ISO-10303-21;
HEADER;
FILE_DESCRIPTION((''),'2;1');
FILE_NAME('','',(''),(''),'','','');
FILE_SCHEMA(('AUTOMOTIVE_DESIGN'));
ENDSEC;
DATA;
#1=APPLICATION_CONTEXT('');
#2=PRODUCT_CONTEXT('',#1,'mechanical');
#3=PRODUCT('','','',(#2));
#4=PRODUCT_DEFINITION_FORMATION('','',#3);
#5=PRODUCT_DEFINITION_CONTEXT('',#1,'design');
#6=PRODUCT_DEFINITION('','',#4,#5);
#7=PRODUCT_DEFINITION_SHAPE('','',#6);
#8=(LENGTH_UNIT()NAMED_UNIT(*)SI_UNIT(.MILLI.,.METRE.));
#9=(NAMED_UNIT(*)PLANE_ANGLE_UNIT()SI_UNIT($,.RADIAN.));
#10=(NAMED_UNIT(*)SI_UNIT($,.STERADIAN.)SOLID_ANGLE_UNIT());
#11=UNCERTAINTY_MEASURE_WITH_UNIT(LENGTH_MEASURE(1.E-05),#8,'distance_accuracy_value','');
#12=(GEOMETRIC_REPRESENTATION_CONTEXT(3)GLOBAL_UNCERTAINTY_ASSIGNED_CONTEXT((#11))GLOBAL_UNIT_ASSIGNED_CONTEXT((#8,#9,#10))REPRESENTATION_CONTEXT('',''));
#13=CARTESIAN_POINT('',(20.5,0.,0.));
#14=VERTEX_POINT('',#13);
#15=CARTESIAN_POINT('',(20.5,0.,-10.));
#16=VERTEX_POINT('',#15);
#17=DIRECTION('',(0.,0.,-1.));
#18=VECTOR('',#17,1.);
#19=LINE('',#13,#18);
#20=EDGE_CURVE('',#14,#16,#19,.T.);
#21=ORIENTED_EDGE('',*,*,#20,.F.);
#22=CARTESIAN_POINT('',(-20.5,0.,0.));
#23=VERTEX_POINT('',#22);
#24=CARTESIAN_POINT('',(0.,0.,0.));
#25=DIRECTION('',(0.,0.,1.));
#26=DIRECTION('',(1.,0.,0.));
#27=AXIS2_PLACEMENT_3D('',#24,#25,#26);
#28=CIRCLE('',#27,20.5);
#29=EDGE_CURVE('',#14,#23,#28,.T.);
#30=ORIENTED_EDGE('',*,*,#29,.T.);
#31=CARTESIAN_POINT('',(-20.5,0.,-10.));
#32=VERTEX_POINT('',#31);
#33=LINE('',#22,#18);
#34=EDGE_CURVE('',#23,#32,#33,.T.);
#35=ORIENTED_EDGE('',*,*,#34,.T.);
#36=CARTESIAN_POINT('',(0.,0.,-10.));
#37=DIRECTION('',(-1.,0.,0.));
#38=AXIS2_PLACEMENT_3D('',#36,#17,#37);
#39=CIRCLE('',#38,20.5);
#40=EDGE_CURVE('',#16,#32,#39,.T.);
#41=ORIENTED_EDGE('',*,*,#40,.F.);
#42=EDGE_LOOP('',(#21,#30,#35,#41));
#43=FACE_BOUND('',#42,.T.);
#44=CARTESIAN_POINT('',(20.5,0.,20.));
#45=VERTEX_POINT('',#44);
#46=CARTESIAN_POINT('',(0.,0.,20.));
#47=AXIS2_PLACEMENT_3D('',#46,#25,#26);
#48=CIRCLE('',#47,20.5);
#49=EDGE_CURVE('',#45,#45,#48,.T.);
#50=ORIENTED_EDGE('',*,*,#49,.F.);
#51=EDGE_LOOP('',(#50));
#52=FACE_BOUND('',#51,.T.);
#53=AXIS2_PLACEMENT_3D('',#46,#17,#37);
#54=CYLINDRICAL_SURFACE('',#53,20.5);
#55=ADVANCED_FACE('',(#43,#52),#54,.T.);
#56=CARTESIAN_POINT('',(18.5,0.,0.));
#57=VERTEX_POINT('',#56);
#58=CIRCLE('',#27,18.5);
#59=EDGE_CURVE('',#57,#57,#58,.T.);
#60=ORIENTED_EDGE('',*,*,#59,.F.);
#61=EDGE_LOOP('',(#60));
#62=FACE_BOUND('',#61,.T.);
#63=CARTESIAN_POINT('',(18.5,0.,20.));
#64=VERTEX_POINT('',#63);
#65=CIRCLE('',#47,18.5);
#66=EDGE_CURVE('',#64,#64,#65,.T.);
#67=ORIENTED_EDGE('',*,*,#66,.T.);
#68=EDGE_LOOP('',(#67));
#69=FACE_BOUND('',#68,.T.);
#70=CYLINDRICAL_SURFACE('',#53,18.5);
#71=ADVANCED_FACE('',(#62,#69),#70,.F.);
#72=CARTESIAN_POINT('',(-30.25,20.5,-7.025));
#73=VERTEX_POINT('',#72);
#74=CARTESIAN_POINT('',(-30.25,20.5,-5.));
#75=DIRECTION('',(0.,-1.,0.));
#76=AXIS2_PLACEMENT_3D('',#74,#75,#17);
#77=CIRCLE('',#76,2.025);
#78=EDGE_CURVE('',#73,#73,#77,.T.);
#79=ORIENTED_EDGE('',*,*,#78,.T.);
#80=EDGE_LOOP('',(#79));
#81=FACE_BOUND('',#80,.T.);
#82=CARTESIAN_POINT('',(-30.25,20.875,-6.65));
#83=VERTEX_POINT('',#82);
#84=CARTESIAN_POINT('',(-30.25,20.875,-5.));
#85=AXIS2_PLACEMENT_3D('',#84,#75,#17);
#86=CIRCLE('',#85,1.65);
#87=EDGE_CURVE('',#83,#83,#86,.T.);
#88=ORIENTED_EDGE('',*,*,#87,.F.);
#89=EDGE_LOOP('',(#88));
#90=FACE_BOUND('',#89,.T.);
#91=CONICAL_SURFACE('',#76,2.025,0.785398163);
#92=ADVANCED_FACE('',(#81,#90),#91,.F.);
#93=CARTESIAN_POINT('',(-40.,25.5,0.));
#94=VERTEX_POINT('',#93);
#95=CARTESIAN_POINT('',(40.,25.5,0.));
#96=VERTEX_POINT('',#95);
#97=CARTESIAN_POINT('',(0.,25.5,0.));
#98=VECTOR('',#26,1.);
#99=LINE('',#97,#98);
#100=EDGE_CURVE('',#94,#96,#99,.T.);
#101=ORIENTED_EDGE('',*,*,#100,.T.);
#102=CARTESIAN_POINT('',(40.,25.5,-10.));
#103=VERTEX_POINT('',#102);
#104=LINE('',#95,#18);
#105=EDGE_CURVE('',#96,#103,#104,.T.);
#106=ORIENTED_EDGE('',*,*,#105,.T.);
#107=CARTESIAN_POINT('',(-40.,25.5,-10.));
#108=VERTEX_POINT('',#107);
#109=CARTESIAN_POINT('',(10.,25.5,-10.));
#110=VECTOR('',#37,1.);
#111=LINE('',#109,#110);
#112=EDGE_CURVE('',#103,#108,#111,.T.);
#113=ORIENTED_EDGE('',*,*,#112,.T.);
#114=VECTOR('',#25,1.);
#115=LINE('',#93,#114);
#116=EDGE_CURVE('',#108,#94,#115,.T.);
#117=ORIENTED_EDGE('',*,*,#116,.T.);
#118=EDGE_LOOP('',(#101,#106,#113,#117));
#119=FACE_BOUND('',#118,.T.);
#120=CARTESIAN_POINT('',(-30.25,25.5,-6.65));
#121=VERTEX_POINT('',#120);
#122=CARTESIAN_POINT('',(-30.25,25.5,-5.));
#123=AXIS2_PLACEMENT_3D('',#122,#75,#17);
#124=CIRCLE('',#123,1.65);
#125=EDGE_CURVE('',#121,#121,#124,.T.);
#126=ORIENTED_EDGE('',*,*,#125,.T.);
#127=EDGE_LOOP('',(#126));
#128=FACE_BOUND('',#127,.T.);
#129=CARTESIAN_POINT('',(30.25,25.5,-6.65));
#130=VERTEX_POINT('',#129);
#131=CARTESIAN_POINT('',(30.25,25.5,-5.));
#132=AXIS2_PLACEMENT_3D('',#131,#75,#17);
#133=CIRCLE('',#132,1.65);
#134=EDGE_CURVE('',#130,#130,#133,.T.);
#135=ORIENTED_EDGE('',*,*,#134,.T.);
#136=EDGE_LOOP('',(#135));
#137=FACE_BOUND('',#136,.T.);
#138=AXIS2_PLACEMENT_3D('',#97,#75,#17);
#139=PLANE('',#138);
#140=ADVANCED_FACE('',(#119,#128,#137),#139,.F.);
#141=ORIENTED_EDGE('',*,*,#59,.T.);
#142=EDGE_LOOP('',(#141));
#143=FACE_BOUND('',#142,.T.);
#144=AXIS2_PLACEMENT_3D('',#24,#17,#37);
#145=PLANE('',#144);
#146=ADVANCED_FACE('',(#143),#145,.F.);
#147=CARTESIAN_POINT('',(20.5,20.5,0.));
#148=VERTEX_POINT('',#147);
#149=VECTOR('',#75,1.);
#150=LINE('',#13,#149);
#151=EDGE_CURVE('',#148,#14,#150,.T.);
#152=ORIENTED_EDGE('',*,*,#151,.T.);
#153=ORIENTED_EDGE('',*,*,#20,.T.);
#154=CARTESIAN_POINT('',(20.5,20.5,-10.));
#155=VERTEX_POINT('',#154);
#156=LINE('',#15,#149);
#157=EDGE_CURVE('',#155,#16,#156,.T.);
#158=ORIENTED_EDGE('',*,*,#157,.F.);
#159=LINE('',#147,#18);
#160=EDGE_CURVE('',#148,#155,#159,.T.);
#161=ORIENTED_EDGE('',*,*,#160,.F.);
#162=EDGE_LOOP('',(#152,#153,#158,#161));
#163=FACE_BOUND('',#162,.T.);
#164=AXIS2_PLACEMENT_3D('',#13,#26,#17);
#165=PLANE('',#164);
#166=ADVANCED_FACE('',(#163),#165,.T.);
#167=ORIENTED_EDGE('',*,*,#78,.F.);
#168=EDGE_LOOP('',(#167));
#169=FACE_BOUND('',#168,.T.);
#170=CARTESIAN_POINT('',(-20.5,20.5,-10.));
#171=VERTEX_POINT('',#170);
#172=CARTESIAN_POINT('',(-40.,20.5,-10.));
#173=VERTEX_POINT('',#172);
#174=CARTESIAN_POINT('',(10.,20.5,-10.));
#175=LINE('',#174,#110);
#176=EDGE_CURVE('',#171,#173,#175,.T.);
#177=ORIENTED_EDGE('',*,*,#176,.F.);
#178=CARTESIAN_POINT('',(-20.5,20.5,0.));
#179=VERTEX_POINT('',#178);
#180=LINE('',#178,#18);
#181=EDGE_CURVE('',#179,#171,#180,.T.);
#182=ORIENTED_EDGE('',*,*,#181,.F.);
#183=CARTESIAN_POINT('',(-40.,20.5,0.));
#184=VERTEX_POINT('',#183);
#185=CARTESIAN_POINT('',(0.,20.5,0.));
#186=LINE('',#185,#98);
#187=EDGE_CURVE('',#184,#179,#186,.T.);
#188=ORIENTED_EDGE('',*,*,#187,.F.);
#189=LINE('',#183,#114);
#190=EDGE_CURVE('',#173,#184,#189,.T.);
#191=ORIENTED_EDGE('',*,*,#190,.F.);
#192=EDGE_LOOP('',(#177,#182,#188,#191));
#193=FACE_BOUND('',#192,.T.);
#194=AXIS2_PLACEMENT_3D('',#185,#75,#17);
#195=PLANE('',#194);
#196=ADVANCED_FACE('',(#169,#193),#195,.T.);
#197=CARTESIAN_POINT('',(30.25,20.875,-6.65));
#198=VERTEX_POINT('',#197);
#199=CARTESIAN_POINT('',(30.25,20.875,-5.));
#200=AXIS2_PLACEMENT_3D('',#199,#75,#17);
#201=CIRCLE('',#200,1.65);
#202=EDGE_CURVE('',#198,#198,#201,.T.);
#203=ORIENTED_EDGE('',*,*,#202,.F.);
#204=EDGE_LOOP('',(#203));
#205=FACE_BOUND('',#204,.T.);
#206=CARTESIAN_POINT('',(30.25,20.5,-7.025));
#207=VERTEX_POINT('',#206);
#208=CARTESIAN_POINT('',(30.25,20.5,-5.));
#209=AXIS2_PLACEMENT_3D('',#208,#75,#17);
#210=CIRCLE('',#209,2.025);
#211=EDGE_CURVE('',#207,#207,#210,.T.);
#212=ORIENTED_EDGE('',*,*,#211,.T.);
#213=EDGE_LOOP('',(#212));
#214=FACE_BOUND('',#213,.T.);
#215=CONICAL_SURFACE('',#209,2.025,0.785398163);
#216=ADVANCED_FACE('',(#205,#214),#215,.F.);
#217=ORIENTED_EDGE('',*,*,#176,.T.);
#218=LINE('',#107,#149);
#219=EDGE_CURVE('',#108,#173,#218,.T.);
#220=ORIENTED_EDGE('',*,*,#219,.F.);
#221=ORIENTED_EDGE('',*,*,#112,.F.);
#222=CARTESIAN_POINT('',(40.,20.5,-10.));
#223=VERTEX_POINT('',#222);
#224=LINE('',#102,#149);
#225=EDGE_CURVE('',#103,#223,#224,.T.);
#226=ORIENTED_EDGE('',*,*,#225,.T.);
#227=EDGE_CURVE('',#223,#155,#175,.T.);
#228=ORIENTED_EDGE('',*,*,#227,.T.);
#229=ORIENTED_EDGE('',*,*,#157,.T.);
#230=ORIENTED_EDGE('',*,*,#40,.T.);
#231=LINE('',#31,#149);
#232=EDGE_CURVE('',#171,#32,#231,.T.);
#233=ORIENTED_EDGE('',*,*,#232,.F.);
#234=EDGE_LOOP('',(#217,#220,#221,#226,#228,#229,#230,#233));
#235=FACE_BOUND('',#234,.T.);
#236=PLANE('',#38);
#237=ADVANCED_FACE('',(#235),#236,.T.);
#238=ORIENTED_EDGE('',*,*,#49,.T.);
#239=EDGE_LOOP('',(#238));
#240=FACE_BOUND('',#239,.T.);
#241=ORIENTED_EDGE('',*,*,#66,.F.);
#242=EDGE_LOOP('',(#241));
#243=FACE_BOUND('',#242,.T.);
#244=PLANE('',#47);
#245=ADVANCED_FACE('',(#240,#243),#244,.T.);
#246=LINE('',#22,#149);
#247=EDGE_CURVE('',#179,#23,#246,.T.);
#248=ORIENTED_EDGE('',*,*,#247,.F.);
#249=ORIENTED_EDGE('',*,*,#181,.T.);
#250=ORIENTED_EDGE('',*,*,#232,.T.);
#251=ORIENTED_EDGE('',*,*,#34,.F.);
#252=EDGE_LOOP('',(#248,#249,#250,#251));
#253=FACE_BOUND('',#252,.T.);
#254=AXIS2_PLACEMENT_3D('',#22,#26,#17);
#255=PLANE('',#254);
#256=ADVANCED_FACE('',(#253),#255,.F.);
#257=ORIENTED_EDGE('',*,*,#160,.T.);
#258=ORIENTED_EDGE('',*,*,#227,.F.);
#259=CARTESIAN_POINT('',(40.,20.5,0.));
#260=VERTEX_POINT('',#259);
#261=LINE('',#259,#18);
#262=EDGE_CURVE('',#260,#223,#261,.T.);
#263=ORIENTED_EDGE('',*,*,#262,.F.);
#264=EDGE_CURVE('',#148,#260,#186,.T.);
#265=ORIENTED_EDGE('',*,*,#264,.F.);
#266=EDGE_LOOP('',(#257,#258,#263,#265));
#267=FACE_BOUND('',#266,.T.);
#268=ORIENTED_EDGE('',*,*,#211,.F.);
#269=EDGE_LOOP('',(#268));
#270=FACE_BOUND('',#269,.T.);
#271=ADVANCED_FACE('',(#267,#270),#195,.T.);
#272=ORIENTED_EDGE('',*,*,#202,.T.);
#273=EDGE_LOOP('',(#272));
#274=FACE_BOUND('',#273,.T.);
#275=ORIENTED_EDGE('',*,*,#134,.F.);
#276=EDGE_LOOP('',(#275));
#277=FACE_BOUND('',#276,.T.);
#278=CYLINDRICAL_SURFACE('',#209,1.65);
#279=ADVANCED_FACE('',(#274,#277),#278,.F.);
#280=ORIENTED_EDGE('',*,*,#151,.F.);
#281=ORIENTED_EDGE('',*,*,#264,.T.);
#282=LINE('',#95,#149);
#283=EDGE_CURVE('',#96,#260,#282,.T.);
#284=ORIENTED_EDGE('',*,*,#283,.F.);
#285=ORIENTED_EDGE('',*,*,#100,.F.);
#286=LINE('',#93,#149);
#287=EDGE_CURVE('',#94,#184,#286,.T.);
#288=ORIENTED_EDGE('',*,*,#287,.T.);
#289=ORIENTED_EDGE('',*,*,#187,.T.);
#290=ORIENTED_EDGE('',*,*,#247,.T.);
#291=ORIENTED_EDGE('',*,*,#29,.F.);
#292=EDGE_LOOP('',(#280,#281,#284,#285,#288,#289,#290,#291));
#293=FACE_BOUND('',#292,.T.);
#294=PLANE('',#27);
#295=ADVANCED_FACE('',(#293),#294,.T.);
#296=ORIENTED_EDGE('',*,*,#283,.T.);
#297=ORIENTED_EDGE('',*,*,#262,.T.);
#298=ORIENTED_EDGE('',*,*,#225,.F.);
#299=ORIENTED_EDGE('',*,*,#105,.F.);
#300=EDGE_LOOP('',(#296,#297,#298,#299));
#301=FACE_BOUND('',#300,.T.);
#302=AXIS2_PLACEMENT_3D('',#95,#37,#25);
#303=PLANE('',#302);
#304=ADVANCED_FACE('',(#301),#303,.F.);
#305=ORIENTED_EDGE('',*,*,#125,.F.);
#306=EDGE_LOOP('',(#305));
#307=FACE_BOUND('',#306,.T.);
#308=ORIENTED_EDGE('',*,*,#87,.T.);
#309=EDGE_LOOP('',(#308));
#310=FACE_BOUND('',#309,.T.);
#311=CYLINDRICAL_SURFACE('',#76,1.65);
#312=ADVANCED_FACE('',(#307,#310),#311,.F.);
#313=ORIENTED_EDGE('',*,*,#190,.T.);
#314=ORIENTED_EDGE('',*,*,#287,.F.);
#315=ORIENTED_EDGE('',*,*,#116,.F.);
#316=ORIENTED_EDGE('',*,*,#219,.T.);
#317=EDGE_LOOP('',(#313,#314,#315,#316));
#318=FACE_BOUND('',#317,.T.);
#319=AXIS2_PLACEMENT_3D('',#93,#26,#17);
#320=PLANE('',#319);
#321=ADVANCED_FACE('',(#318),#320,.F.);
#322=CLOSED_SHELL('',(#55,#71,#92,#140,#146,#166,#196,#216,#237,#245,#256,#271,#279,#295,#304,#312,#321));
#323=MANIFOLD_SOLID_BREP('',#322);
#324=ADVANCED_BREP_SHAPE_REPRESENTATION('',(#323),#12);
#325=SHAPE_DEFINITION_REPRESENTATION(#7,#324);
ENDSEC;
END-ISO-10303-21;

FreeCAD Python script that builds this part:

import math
import FreeCAD as App
import Part
import Sketcher

V = App.Vector

doc = App.newDocument("Part")
params = doc.addObject("Spreadsheet::Sheet", "Params")
for row, (alias, value) in enumerate([
    ("sketch1_diameter", "41 mm"),
    ("sketch1_diameter2", "37 mm"),
    ("pad1_length", "20 mm"),
    ("sketch2_diameter", "41 mm"),
    ("pad2_length", "10 mm"),
    ("sketch3_width", "80 mm"),
    ("sketch3_height", "10 mm"),
    ("pad3_length", "5 mm"),
    ("sketch4_radius", "20.5 mm"),
    ("pad4_length", "10 mm"),
    ("sketch5_diameter", "3.3 mm"),
    ("hole_diameter", "3.3 mm"),
    ("hole_csink_diameter", "4.05 mm"),
], start=1):
    params.set(f"A{row}", alias)
    params.set(f"B{row}", "=" + value)
    params.setAlias(f"B{row}", alias)

body = doc.addObject("PartDesign::Body", "Body")

# Sketch on XY plane
sketch1 = doc.addObject("Sketcher::SketchObject", "Sketch")
body.addObject(sketch1)
sketch1.AttachmentSupport = (doc.XY_Plane, [""])
sketch1.MapMode = "FlatFace"
sketch1.addGeometry(Part.Circle(V(0, 0, 0), V(0, 0, 1), 20.5), False)
sketch1.addGeometry(Part.Circle(V(0, 0, 0), V(0, 0, 1), 18.5), False)
sketch1.addConstraint(Sketcher.Constraint("Coincident", 0, 3, -1, 1))
sketch1.addConstraint(Sketcher.Constraint("Coincident", 1, 3, -1, 1))
sketch1.addConstraint(Sketcher.Constraint("Diameter", 0, 41.0))
sketch1.addConstraint(Sketcher.Constraint("Diameter", 1, 37.0))
sketch1.setExpression("Constraints[2]", "Params.sketch1_diameter")
sketch1.setExpression("Constraints[3]", "Params.sketch1_diameter2")
pad1 = doc.addObject("PartDesign::Pad", "Pad")
body.addObject(pad1)
pad1.Profile = sketch1
pad1.setExpression("Length", "Params.pad1_length")

# Sketch on XY plane
sketch2 = doc.addObject("Sketcher::SketchObject", "Sketch001")
body.addObject(sketch2)
sketch2.AttachmentSupport = (doc.XY_Plane, [""])
sketch2.MapMode = "FlatFace"
sketch2.AttachmentOffset = App.Placement(V(0, 0, -10), App.Rotation())
sketch2.addGeometry(Part.Circle(V(0, 0, 0), V(0, 0, 1), 20.5), False)
sketch2.addConstraint(Sketcher.Constraint("Coincident", 0, 3, -1, 1))
sketch2.addConstraint(Sketcher.Constraint("Diameter", 0, 41.0))
sketch2.setExpression("Constraints[1]", "Params.sketch2_diameter")
pad2 = doc.addObject("PartDesign::Pad", "Pad001")
body.addObject(pad2)
pad2.Profile = sketch2
pad2.setExpression("Length", "Params.pad2_length")
body2 = doc.addObject("PartDesign::Body", "Body001")

# Sketch on XZ plane
sketch3 = doc.addObject("Sketcher::SketchObject", "Sketch002")
body2.addObject(sketch3)
sketch3.AttachmentSupport = (doc.getObject("XZ_Plane001"), [""])
sketch3.MapMode = "FlatFace"
sketch3.AttachmentOffset = App.Placement(V(0, 0, -20.5), App.Rotation())
sketch3.addGeometry(Part.LineSegment(V(40, 0, 0), V(40, -10, 0)), False)
sketch3.addGeometry(Part.LineSegment(V(40, -10, 0), V(-40, -10, 0)), False)
sketch3.addGeometry(Part.LineSegment(V(-40, -10, 0), V(-40, 0, 0)), False)
sketch3.addGeometry(Part.LineSegment(V(-40, 0, 0), V(40, 0, 0)), False)
sketch3.addConstraint(Sketcher.Constraint("Coincident", 0, 2, 1, 1))
sketch3.addConstraint(Sketcher.Constraint("Coincident", 1, 2, 2, 1))
sketch3.addConstraint(Sketcher.Constraint("Coincident", 2, 2, 3, 1))
sketch3.addConstraint(Sketcher.Constraint("Coincident", 3, 2, 0, 1))
sketch3.addConstraint(Sketcher.Constraint("Vertical", 0))
sketch3.addConstraint(Sketcher.Constraint("Horizontal", 1))
sketch3.addConstraint(Sketcher.Constraint("Vertical", 2))
sketch3.addConstraint(Sketcher.Constraint("Horizontal", 3))
sketch3.addConstraint(Sketcher.Constraint("Symmetric", 2, 2, 3, 2, -1, 1))
sketch3.addConstraint(Sketcher.Constraint("DistanceX", 1, 2, 1, 1, 80.0))
sketch3.addConstraint(Sketcher.Constraint("DistanceY", 0, 2, 0, 1, 10.0))
sketch3.setExpression("Constraints[9]", "Params.sketch3_width")
sketch3.setExpression("Constraints[10]", "Params.sketch3_height")
pad3 = doc.addObject("PartDesign::Pad", "Pad002")
body2.addObject(pad3)
pad3.Profile = sketch3
pad3.setExpression("Length", "Params.pad3_length")
pad3.Reversed = True
body.AllowCompound = True
doc.recompute()

boolean = doc.addObject("PartDesign::Boolean", "Boolean")
body.addObject(boolean)
boolean.Type = "Fuse"
boolean.addObjects([body2])

# Sketch on XY plane
sketch4 = doc.addObject("Sketcher::SketchObject", "Sketch003")
body.addObject(sketch4)
sketch4.AttachmentSupport = (doc.XY_Plane, [""])
sketch4.MapMode = "FlatFace"
sketch4.AttachmentOffset = App.Placement(V(0, 0, -10), App.Rotation())
sketch4.addGeometry(Part.ArcOfCircle(Part.Circle(V(0, 0, 0), V(0, 0, 1), 20.5), math.radians(0), math.radians(90)), False)
sketch4.addGeometry(Part.LineSegment(V(20.5, 0, 0), V(20.5, 20.5, 0)), False)
sketch4.addGeometry(Part.LineSegment(V(20.5, 20.5, 0), V(0, 20.5, 0)), False)
sketch4.addGeometry(Part.LineSegment(V(-20.5, 20.5, 0), V(-20.5, 0, 0)), False)
sketch4.addGeometry(Part.ArcOfCircle(Part.Circle(V(0, 0, 0), V(0, 0, 1), 20.5), math.radians(90), math.radians(180)), False)
sketch4.addGeometry(Part.LineSegment(V(0, 20.5, 0), V(-20.5, 20.5, 0)), False)
sketch4.addConstraint(Sketcher.Constraint("Tangent", 0, 1, 1, 1))
sketch4.addConstraint(Sketcher.Constraint("Coincident", 1, 2, 2, 1))
sketch4.addConstraint(Sketcher.Constraint("Tangent", 2, 2, 0, 2))
sketch4.addConstraint(Sketcher.Constraint("Tangent", 3, 2, 4, 2))
sketch4.addConstraint(Sketcher.Constraint("Tangent", 4, 1, 5, 1))
sketch4.addConstraint(Sketcher.Constraint("Coincident", 5, 2, 3, 1))
sketch4.addConstraint(Sketcher.Constraint("Vertical", 1))
sketch4.addConstraint(Sketcher.Constraint("Horizontal", 2))
sketch4.addConstraint(Sketcher.Constraint("Vertical", 3))
sketch4.addConstraint(Sketcher.Constraint("Horizontal", 5))
sketch4.addConstraint(Sketcher.Constraint("Coincident", 0, 3, -1, 1))
sketch4.addConstraint(Sketcher.Constraint("Coincident", 4, 3, -1, 1))
sketch4.addConstraint(Sketcher.Constraint("Equal", 0, 4))
sketch4.addConstraint(Sketcher.Constraint("Radius", 0, 20.5))
sketch4.setExpression("Constraints[13]", "Params.sketch4_radius")
pad4 = doc.addObject("PartDesign::Pad", "Pad003")
body.addObject(pad4)
pad4.Profile = sketch4
pad4.setExpression("Length", "Params.pad4_length")

# Sketch on XZ plane
sketch5 = doc.addObject("Sketcher::SketchObject", "Sketch004")
body.addObject(sketch5)
sketch5.AttachmentSupport = (doc.XZ_Plane, [""])
sketch5.MapMode = "FlatFace"
sketch5.AttachmentOffset = App.Placement(V(0, 0, -20.5), App.Rotation())
sketch5.addGeometry(Part.Circle(V(30.25, -5, 0), V(0, 0, 1), 1.65), False)
sketch5.addGeometry(Part.Circle(V(-30.25, -5, 0), V(0, 0, 1), 1.65), False)
sketch5.addConstraint(Sketcher.Constraint("Equal", 0, 1))
sketch5.addConstraint(Sketcher.Constraint("Symmetric", 0, 3, 1, 3, -2))
sketch5.addConstraint(Sketcher.Constraint("Diameter", 0, 3.3))
sketch5.addConstraint(Sketcher.Constraint("DistanceY", 0, 3, -1, 1, 5.0))
sketch5.addConstraint(Sketcher.Constraint("DistanceX", 1, 3, 0, 3, 60.5))
sketch5.setExpression("Constraints[2]", "Params.sketch5_diameter")
doc.recompute()
hole = doc.addObject("PartDesign::Hole", "Hole")
body.addObject(hole)
hole.Profile = sketch5
hole.ThreadType = "None"
hole.setExpression("Diameter", "Params.hole_diameter")
hole.DepthType = "ThroughAll"
hole.HoleCutType = "Countersink"
hole.setExpression("HoleCutDiameter", "Params.hole_csink_diameter")
hole.HoleCutCountersinkAngle = 90

doc.recompute()
